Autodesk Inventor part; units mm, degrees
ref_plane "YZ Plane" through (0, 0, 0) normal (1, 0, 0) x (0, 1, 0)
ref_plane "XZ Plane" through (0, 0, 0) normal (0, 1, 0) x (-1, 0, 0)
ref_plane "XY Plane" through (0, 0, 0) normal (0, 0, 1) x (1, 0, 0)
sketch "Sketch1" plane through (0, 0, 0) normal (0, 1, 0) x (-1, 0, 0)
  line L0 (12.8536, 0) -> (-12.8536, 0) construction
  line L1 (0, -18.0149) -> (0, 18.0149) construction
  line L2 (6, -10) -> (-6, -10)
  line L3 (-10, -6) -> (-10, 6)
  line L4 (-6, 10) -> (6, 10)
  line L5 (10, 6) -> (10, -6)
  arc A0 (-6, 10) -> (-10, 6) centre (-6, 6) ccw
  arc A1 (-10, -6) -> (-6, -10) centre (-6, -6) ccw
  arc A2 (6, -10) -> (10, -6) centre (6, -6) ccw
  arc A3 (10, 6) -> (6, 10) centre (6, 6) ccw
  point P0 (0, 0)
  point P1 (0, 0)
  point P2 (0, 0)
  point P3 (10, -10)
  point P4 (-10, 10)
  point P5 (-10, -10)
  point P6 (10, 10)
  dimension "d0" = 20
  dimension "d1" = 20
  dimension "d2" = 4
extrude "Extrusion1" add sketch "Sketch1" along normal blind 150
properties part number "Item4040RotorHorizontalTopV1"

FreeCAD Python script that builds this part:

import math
import FreeCAD as App
import Part
import Sketcher
Q = App.Units.Quantity

doc = App.newDocument("Part")
body = doc.addObject("PartDesign::Body", "Body")

sketch1 = doc.addObject("Sketcher::SketchObject", "Sketch")
body.addObject(sketch1)
sketch1.AttachmentSupport = (doc.XZ_Plane, [""])
sketch1.MapMode = "FlatFace"
sketch1.addGeometry(Part.LineSegment(App.Vector(6, -10, 0), App.Vector(-6, -10, 0)), False)
sketch1.addGeometry(Part.ArcOfCircle(Part.Circle(App.Vector(-6, -6, 0), App.Vector(0, 0, 1), 4), math.radians(180), math.radians(270)), False)
sketch1.addGeometry(Part.LineSegment(App.Vector(-10, -6, 0), App.Vector(-10, 6, 0)), False)
sketch1.addGeometry(Part.ArcOfCircle(Part.Circle(App.Vector(-6, 6, 0), App.Vector(0, 0, 1), 4), math.radians(90), math.radians(180)), False)
sketch1.addGeometry(Part.LineSegment(App.Vector(-6, 10, 0), App.Vector(6, 10, 0)), False)
sketch1.addGeometry(Part.ArcOfCircle(Part.Circle(App.Vector(6, 6, 0), App.Vector(0, 0, 1), 4), math.radians(0), math.radians(90)), False)
sketch1.addGeometry(Part.LineSegment(App.Vector(10, 6, 0), App.Vector(10, -6, 0)), False)
sketch1.addGeometry(Part.ArcOfCircle(Part.Circle(App.Vector(6, -6, 0), App.Vector(0, 0, 1), 4), math.radians(-90), math.radians(0)), False)
sketch1.addConstraint(Sketcher.Constraint("Tangent", 0, 2, 1, 2))
sketch1.addConstraint(Sketcher.Constraint("Tangent", 1, 1, 2, 1))
sketch1.addConstraint(Sketcher.Constraint("Tangent", 2, 2, 3, 2))
sketch1.addConstraint(Sketcher.Constraint("Tangent", 3, 1, 4, 1))
sketch1.addConstraint(Sketcher.Constraint("Tangent", 4, 2, 5, 2))
sketch1.addConstraint(Sketcher.Constraint("Tangent", 5, 1, 6, 1))
sketch1.addConstraint(Sketcher.Constraint("Tangent", 6, 2, 7, 2))
sketch1.addConstraint(Sketcher.Constraint("Tangent", 7, 1, 0, 1))
sketch1.addConstraint(Sketcher.Constraint("Horizontal", 0))
sketch1.addConstraint(Sketcher.Constraint("Vertical", 2))
sketch1.addConstraint(Sketcher.Constraint("Horizontal", 4))
sketch1.addConstraint(Sketcher.Constraint("Vertical", 6))
sketch1.addConstraint(Sketcher.Constraint("Equal", 1, 3))
sketch1.addConstraint(Sketcher.Constraint("Equal", 3, 5))
sketch1.addConstraint(Sketcher.Constraint("Equal", 5, 7))
sketch1.addConstraint(Sketcher.Constraint("Symmetric", 1, 3, 5, 3, -1, 1))
sketch1.addConstraint(Sketcher.Constraint("Equal", 4, 2))
sketch1.addConstraint(Sketcher.Constraint("Radius", 1, Q("4 mm")))
sketch1.addConstraint(Sketcher.Constraint("DistanceX", 0, 2, 0, 1, Q("12 mm")))
pad1 = doc.addObject("PartDesign::Pad", "Pad")
body.addObject(pad1)
pad1.Profile = sketch1
pad1.Length = 150
pad1.Reversed = True

doc.recompute()
